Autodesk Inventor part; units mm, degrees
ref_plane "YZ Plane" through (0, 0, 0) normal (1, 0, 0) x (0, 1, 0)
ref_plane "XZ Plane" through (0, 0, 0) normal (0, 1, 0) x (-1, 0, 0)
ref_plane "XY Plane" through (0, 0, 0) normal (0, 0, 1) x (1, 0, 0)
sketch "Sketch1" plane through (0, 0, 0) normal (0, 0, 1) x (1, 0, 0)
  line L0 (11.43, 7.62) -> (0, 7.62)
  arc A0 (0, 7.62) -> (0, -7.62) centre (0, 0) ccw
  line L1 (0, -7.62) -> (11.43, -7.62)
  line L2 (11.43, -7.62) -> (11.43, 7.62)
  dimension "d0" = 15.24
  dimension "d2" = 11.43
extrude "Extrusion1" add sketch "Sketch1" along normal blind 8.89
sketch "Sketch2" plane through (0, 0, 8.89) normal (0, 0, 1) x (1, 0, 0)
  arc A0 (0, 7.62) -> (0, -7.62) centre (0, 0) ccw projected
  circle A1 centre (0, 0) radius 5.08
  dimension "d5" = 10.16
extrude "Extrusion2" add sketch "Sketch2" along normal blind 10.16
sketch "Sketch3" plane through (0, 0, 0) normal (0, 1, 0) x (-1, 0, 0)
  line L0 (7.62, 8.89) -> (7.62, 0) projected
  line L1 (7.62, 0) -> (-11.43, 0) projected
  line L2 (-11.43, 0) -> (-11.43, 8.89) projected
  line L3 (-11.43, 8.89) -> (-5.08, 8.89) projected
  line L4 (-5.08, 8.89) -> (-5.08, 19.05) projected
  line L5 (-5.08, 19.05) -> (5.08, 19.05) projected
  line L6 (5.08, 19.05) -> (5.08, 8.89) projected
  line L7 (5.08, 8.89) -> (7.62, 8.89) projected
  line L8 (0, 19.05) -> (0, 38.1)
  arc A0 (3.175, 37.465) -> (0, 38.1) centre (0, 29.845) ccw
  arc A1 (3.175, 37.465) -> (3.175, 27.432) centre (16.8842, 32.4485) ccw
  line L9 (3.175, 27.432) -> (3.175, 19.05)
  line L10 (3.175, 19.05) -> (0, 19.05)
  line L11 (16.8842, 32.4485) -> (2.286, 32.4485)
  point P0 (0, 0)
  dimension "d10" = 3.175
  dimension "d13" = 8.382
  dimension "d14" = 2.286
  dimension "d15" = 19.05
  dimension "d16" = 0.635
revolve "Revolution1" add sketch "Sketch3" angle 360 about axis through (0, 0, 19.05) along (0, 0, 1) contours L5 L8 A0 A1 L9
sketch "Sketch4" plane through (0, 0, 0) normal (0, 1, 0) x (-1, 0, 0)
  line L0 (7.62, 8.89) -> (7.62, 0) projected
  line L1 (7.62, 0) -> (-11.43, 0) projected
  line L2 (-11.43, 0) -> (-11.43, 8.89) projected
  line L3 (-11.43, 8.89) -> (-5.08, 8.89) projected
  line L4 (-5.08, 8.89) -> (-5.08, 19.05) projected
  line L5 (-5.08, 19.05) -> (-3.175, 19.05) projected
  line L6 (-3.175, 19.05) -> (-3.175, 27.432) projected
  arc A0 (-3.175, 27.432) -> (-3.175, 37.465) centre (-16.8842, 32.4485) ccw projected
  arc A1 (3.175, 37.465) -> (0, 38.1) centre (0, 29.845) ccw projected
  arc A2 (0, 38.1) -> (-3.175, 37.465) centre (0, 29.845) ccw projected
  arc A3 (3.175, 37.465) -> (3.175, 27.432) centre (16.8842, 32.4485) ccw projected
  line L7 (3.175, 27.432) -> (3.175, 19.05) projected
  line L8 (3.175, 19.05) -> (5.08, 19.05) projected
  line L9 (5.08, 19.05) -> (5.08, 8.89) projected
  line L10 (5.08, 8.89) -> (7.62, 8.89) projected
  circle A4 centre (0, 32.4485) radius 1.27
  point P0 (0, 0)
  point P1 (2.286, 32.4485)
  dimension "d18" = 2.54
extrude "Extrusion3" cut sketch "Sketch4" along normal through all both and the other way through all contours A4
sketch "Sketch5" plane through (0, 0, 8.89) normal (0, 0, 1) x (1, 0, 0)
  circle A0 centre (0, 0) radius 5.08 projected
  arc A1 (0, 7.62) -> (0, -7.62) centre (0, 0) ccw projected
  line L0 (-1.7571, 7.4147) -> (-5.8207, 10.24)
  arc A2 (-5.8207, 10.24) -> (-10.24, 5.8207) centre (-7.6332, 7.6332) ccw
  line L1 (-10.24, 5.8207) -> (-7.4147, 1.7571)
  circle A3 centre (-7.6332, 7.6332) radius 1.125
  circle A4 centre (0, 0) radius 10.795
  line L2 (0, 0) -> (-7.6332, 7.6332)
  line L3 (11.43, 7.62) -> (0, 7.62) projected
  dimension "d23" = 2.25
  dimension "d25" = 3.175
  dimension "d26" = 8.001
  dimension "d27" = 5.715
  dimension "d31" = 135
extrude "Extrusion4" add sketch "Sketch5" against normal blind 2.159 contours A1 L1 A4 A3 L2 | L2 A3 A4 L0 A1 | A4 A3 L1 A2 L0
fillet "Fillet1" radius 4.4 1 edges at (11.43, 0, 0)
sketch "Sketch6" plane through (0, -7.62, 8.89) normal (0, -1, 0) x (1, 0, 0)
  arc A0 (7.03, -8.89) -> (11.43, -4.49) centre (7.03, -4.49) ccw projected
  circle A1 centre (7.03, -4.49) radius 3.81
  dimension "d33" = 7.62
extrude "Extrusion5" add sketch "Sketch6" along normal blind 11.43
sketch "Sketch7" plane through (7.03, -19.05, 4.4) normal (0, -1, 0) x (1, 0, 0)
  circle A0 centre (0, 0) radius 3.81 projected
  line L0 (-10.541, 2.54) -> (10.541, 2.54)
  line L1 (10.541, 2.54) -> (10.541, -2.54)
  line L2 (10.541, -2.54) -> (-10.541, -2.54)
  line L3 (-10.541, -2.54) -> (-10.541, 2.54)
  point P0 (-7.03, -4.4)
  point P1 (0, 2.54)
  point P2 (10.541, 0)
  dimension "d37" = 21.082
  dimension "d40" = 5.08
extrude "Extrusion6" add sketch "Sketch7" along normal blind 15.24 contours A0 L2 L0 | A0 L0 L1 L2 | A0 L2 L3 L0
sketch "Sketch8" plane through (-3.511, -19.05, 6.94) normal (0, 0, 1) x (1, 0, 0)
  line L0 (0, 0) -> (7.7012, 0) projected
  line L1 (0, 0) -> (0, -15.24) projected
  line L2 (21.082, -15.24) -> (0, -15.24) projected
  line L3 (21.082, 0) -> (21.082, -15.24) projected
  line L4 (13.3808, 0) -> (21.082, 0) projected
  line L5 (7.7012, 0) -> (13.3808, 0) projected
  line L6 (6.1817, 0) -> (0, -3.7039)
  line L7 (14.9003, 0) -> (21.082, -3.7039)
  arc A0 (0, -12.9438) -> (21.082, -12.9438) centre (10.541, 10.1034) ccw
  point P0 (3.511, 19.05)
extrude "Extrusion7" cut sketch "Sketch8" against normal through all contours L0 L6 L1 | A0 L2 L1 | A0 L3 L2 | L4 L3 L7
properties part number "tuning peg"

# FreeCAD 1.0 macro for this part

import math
import FreeCAD as App
import Part
import Sketcher

V = App.Vector
Q = App.Units.Quantity


def edges_at(feature, points):
    """Names of the edges that pass closest to the given points."""
    edges = feature.Shape.Edges
    near = lambda p: min(range(len(edges)), key=lambda i: edges[i].distToShape(Part.Vertex(*p))[0])
    return sorted({f"Edge{near(p) + 1}" for p in points})

doc = App.newDocument("Part")
body = doc.addObject("PartDesign::Body", "Body")

sketch1 = body.newObject("Sketcher::SketchObject", "Sketch")
sketch1.AttachmentSupport = (doc.getObject("XY_Plane"), [""])
sketch1.MapMode = "FlatFace"
sketch1.addGeometry([
    Part.LineSegment(V(11.43, -7.62, 0), V(11.43, 7.62, 0)),
    Part.LineSegment(V(11.43, 7.62, 0), V(0, 7.62, 0)),
    Part.ArcOfCircle(Part.Circle(V(0, 0, 0), V(0, 0, 1), 7.62), math.radians(90), math.radians(270)),
    Part.LineSegment(V(0, -7.62, 0), V(11.43, -7.62, 0)),
], False)
sketch1.addConstraint([
    Sketcher.Constraint("Coincident", 0, 2, 1, 1),
    Sketcher.Constraint("Tangent", 1, 2, 2, 1),
    Sketcher.Constraint("Tangent", 2, 2, 3, 1),
    Sketcher.Constraint("Coincident", 3, 2, 0, 1),
    Sketcher.Constraint("Vertical", 0),
    Sketcher.Constraint("Horizontal", 1),
    Sketcher.Constraint("Horizontal", 3),
    Sketcher.Constraint("Coincident", 2, 3, -1, 1),
    Sketcher.Constraint("Radius", 2, Q("0.3 in")),
    Sketcher.Constraint("DistanceX", 1, 2, 1, 1, Q("0.45 in")),
])
pad1 = body.newObject("PartDesign::Pad", "Pad")
pad1.Profile = sketch1
pad1.Length = Q("0.35 in")

sketch2 = body.newObject("Sketcher::SketchObject", "Sketch001")
sketch2.AttachmentSupport = (doc.getObject("XY_Plane"), [""])
sketch2.MapMode = "FlatFace"
sketch2.AttachmentOffset = App.Placement(V(0, 0, 0.35 * 25.4), App.Rotation())
sketch2.addGeometry(Part.Circle(V(0, 0, 0), V(0, 0, 1), 5.08), False)
sketch2.addConstraint([
    Sketcher.Constraint("Coincident", 0, 3, -1, 1),
    Sketcher.Constraint("Diameter", 0, Q("0.4 in")),
])
pad2 = body.newObject("PartDesign::Pad", "Pad001")
pad2.Profile = sketch2
pad2.Length = Q("0.4 in")

sketch3 = body.newObject("Sketcher::SketchObject", "Sketch002")
sketch3.AttachmentSupport = (doc.getObject("XZ_Plane"), [""])
sketch3.MapMode = "FlatFace"
sketch3.addGeometry([
    Part.LineSegment(V(0, 19.05, 0), V(-3.175, 19.05, 0)),
    Part.LineSegment(V(-3.175, 19.05, 0), V(-3.175, 27.432, 0)),
    Part.ArcOfCircle(Part.Circle(V(-16.8842, 32.4485, 0), V(0, 0, 1), 14.5982), math.radians(-20.098692), math.radians(20.098692)),
    Part.ArcOfCircle(Part.Circle(V(0, 29.845, 0), V(0, 0, 1), 8.255), math.radians(90), math.radians(112.619865)),
    Part.LineSegment(V(0, 38.1, 0), V(0, 19.05, 0)),
], False)
sketch3.addConstraint([
    Sketcher.Constraint("Coincident", 0, 2, 1, 1),
    Sketcher.Constraint("Coincident", 1, 2, 2, 1),
    Sketcher.Constraint("Coincident", 2, 2, 3, 2),
    Sketcher.Constraint("Coincident", 3, 1, 4, 1),
    Sketcher.Constraint("Coincident", 4, 2, 0, 1),
    Sketcher.Constraint("Horizontal", 0),
    Sketcher.Constraint("Vertical", 1),
    Sketcher.Constraint("Vertical", 4),
    Sketcher.Constraint("PointOnObject", 3, 3, -2),
    Sketcher.Constraint("PointOnObject", 3, 1, -2),
    Sketcher.Constraint("Vertical", 1, 2, 2, 2),
    Sketcher.Constraint("DistanceY", 1, 1, 1, 2, Q("0.33 in")),
    Sketcher.Constraint("DistanceY", 4, 2, 4, 1, Q("0.75 in")),
    Sketcher.Constraint("DistanceX", 0, 2, 0, 1, Q("0.125 in")),
    Sketcher.Constraint("DistanceY", -1, 1, 0, 2, Q("0.75 in")),
    Sketcher.Constraint("Radius", 3, Q("0.325 in")),
    Sketcher.Constraint("Radius", 2, 14.5982),
])
revolution = body.newObject("PartDesign::Revolution", "Revolution")
revolution.Profile = sketch3
revolution.ReferenceAxis = (sketch3, ["V_Axis"])
revolution.Angle = 360

sketch4 = body.newObject("Sketcher::SketchObject", "Sketch003")
sketch4.AttachmentSupport = (doc.getObject("XZ_Plane"), [""])
sketch4.MapMode = "FlatFace"
sketch4.addGeometry(Part.Circle(V(0, 32.4485, 0), V(0, 0, 1), 1.27), False)
sketch4.addConstraint([
    Sketcher.Constraint("PointOnObject", 0, 3, -2),
    Sketcher.Constraint("Diameter", 0, Q("0.1 in")),
    Sketcher.Constraint("DistanceY", -1, 1, 0, 3, Q("1.2775 in")),
])
pocket1 = body.newObject("PartDesign::Pocket", "Pocket")
pocket1.Profile = sketch4
pocket1.Type = "ThroughAll"
pocket1.Midplane = True

sketch5 = body.newObject("Sketcher::SketchObject", "Sketch004")
sketch5.AttachmentSupport = (doc.getObject("XY_Plane"), [""])
sketch5.MapMode = "FlatFace"
sketch5.AttachmentOffset = App.Placement(V(0, 0, 0.35 * 25.4), App.Rotation())
sketch5.addGeometry([
    Part.ArcOfCircle(Part.Circle(V(0, 0, 0), V(0, 0, 1), 7.62), math.radians(103.331752), math.radians(166.668248)),
    Part.LineSegment(V(-1.7571, 7.4147, 0), V(-5.8207, 10.24, 0)),
    Part.ArcOfCircle(Part.Circle(V(-7.6332, 7.6332, 0), V(0, 0, 1), 3.17499), math.radians(55.18923), math.radians(214.81077)),
    Part.LineSegment(V(-10.24, 5.8207, 0), V(-7.4147, 1.7571, 0)),
    Part.Circle(V(-7.6332, 7.6332, 0), V(0, 0, 1), 1.125),
], False)
sketch5.addConstraint([
    Sketcher.Constraint("Coincident", 0, 1, 1, 1),
    Sketcher.Constraint("Tangent", 1, 2, 2, 1),
    Sketcher.Constraint("Tangent", 2, 2, 3, 1),
    Sketcher.Constraint("Coincident", 3, 2, 0, 2),
    Sketcher.Constraint("Coincident", 0, 3, -1, 1),
    Sketcher.Constraint("Coincident", 4, 3, 2, 3),
    Sketcher.Constraint("Equal", 1, 3),
    Sketcher.Constraint("Radius", 2, Q("0.125 in")),
    Sketcher.Constraint("Radius", 0, Q("0.3 in")),
    Sketcher.Constraint("Diameter", 4, 2.25),
    Sketcher.Constraint("Angle", 1, Q("145.1903 deg")),
    Sketcher.Constraint("Angle", 3, Q("-55.1903 deg")),
    Sketcher.Constraint("DistanceY", 0, 1, 2, 3, Q("0.0086 in")),
])
pad3 = body.newObject("PartDesign::Pad", "Pad002")
pad3.Profile = sketch5
pad3.Length = Q("0.085 in")
pad3.Reversed = True
doc.recompute()

fillet = body.newObject("PartDesign::Fillet", "Fillet")
fillet.Base = (pad3, edges_at(pad3, [(11.43, 0, 0)]))
fillet.Radius = 4.4

sketch6 = body.newObject("Sketcher::SketchObject", "Sketch005")
sketch6.AttachmentSupport = (doc.getObject("XZ_Plane"), [""])
sketch6.MapMode = "FlatFace"
sketch6.AttachmentOffset = App.Placement(V(0, 0, 0.3 * 25.4), App.Rotation())
sketch6.addGeometry(Part.Circle(V(7.03, 4.4, 0), V(0, 0, 1), 3.81), False)
sketch6.addConstraint([
    Sketcher.Constraint("Diameter", 0, Q("0.3 in")),
    Sketcher.Constraint("DistanceX", -1, 1, 0, 3, 7.03),
    Sketcher.Constraint("DistanceY", -1, 1, 0, 3, 4.4),
])
pad4 = body.newObject("PartDesign::Pad", "Pad003")
pad4.Profile = sketch6
pad4.Length = Q("0.45 in")

sketch7 = body.newObject("Sketcher::SketchObject", "Sketch006")
sketch7.AttachmentSupport = (doc.getObject("XZ_Plane"), [""])
sketch7.MapMode = "FlatFace"
sketch7.AttachmentOffset = App.Placement(V(0, 0, 0.75 * 25.4), App.Rotation())
sketch7.addGeometry([
    Part.LineSegment(V(17.571, 1.86, 0), V(17.571, 6.94, 0)),
    Part.LineSegment(V(17.571, 6.94, 0), V(-3.511, 6.94, 0)),
    Part.LineSegment(V(-3.511, 6.94, 0), V(-3.511, 1.86, 0)),
    Part.LineSegment(V(-3.511, 1.86, 0), V(17.571, 1.86, 0)),
], False)
sketch7.addConstraint([
    Sketcher.Constraint("Coincident", 0, 2, 1, 1),
    Sketcher.Constraint("Coincident", 1, 2, 2, 1),
    Sketcher.Constraint("Coincident", 2, 2, 3, 1),
    Sketcher.Constraint("Coincident", 3, 2, 0, 1),
    Sketcher.Constraint("Vertical", 0),
    Sketcher.Constraint("Horizontal", 1),
    Sketcher.Constraint("Vertical", 2),
    Sketcher.Constraint("Horizontal", 3),
    Sketcher.Constraint("DistanceY", 0, 1, 0, 2, Q("0.2 in")),
    Sketcher.Constraint("DistanceX", 1, 2, 1, 1, Q("0.83 in")),
    Sketcher.Constraint("DistanceX", -1, 1, 0, 2, 17.571),
    Sketcher.Constraint("DistanceY", -1, 1, 0, 2, 6.94),
])
pad5 = body.newObject("PartDesign::Pad", "Pad004")
pad5.Profile = sketch7
pad5.Length = Q("0.6 in")

sketch8 = body.newObject("Sketcher::SketchObject", "Sketch007")
sketch8.AttachmentSupport = (doc.getObject("XY_Plane"), [""])
sketch8.MapMode = "FlatFace"
sketch8.AttachmentOffset = App.Placement(V(0, 0, 6.94), App.Rotation())
sketch8.addGeometry([
    Part.LineSegment(V(2.6707, -19.05, 0), V(-3.511, -19.05, 0)),
    Part.LineSegment(V(-3.511, -19.05, 0), V(-3.511, -22.7539, 0)),
    Part.LineSegment(V(-3.511, -22.7539, 0), V(2.6707, -19.05, 0)),
    Part.ArcOfCircle(Part.Circle(V(7.03, -8.9466, 0), V(0, 0, 1), 25.343364), math.radians(-114.577734), math.radians(-90)),
    Part.LineSegment(V(-3.511, -31.9938, 0), V(-3.511, -34.29, 0)),
    Part.LineSegment(V(-3.511, -34.29, 0), V(7.03, -34.29, 0)),
    Part.ArcOfCircle(Part.Circle(V(7.03, -8.9466, 0), V(0, 0, 1), 25.343364), math.radians(-90), math.radians(-65.422266)),
    Part.LineSegment(V(7.03, -34.29, 0), V(17.571, -34.29, 0)),
    Part.LineSegment(V(17.571, -34.29, 0), V(17.571, -31.9938, 0)),
    Part.LineSegment(V(17.571, -19.05, 0), V(11.3893, -19.05, 0)),
    Part.LineSegment(V(11.3893, -19.05, 0), V(17.571, -22.7539, 0)),
    Part.LineSegment(V(17.571, -22.7539, 0), V(17.571, -19.05, 0)),
], False)
sketch8.addConstraint([
    Sketcher.Constraint("Coincident", 0, 2, 1, 1),
    Sketcher.Constraint("Coincident", 1, 2, 2, 1),
    Sketcher.Constraint("Coincident", 2, 2, 0, 1),
    Sketcher.Constraint("Coincident", 3, 1, 4, 1),
    Sketcher.Constraint("Coincident", 4, 2, 5, 1),
    Sketcher.Constraint("Tangent", 5, 2, 3, 2),
    Sketcher.Constraint("Tangent", 6, 1, 7, 1),
    Sketcher.Constraint("Coincident", 7, 2, 8, 1),
    Sketcher.Constraint("Coincident", 8, 2, 6, 2),
    Sketcher.Constraint("Coincident", 9, 2, 10, 1),
    Sketcher.Constraint("Coincident", 10, 2, 11, 1),
    Sketcher.Constraint("Coincident", 11, 2, 9, 1),
    Sketcher.Constraint("Horizontal", 0),
    Sketcher.Constraint("Vertical", 1),
    Sketcher.Constraint("Vertical", 4),
    Sketcher.Constraint("Horizontal", 5),
    Sketcher.Constraint("Horizontal", 7),
    Sketcher.Constraint("Vertical", 8),
    Sketcher.Constraint("Horizontal", 9),
    Sketcher.Constraint("Vertical", 11),
    Sketcher.Constraint("Coincident", 6, 3, 3, 3),
    Sketcher.Constraint("Equal", 3, 6),
    Sketcher.Constraint("Horizontal", 3, 1, 8, 2),
    Sketcher.Constraint("Horizontal", 2, 2, 9, 2),
    Sketcher.Constraint("Horizontal", 1, 2, 10, 2),
    Sketcher.Constraint("Vertical", 1, 2, 3, 1),
    Sketcher.Constraint("Vertical", 8, 2, 10, 2),
    Sketcher.Constraint("Equal", 0, 9),
    Sketcher.Constraint("DistanceY", 4, 2, 0, 2, Q("0.6 in")),
    Sketcher.Constraint("DistanceX", 5, 1, 5, 2, Q("0.415 in")),
    Sketcher.Constraint("DistanceY", 0, 2, -1, 1, Q("0.75 in")),
    Sketcher.Constraint("Angle", 2, Q("30.9289 deg")),
    Sketcher.Constraint("Radius", 3, 25.3434),
    Sketcher.Constraint("DistanceX", 0, 2, 0, 1, 6.1817),
    Sketcher.Constraint("DistanceX", -1, 1, 9, 2, Q("0.4484 in")),
])
pocket2 = body.newObject("PartDesign::Pocket", "Pocket001")
pocket2.Profile = sketch8
pocket2.Type = "ThroughAll"

doc.recompute()
